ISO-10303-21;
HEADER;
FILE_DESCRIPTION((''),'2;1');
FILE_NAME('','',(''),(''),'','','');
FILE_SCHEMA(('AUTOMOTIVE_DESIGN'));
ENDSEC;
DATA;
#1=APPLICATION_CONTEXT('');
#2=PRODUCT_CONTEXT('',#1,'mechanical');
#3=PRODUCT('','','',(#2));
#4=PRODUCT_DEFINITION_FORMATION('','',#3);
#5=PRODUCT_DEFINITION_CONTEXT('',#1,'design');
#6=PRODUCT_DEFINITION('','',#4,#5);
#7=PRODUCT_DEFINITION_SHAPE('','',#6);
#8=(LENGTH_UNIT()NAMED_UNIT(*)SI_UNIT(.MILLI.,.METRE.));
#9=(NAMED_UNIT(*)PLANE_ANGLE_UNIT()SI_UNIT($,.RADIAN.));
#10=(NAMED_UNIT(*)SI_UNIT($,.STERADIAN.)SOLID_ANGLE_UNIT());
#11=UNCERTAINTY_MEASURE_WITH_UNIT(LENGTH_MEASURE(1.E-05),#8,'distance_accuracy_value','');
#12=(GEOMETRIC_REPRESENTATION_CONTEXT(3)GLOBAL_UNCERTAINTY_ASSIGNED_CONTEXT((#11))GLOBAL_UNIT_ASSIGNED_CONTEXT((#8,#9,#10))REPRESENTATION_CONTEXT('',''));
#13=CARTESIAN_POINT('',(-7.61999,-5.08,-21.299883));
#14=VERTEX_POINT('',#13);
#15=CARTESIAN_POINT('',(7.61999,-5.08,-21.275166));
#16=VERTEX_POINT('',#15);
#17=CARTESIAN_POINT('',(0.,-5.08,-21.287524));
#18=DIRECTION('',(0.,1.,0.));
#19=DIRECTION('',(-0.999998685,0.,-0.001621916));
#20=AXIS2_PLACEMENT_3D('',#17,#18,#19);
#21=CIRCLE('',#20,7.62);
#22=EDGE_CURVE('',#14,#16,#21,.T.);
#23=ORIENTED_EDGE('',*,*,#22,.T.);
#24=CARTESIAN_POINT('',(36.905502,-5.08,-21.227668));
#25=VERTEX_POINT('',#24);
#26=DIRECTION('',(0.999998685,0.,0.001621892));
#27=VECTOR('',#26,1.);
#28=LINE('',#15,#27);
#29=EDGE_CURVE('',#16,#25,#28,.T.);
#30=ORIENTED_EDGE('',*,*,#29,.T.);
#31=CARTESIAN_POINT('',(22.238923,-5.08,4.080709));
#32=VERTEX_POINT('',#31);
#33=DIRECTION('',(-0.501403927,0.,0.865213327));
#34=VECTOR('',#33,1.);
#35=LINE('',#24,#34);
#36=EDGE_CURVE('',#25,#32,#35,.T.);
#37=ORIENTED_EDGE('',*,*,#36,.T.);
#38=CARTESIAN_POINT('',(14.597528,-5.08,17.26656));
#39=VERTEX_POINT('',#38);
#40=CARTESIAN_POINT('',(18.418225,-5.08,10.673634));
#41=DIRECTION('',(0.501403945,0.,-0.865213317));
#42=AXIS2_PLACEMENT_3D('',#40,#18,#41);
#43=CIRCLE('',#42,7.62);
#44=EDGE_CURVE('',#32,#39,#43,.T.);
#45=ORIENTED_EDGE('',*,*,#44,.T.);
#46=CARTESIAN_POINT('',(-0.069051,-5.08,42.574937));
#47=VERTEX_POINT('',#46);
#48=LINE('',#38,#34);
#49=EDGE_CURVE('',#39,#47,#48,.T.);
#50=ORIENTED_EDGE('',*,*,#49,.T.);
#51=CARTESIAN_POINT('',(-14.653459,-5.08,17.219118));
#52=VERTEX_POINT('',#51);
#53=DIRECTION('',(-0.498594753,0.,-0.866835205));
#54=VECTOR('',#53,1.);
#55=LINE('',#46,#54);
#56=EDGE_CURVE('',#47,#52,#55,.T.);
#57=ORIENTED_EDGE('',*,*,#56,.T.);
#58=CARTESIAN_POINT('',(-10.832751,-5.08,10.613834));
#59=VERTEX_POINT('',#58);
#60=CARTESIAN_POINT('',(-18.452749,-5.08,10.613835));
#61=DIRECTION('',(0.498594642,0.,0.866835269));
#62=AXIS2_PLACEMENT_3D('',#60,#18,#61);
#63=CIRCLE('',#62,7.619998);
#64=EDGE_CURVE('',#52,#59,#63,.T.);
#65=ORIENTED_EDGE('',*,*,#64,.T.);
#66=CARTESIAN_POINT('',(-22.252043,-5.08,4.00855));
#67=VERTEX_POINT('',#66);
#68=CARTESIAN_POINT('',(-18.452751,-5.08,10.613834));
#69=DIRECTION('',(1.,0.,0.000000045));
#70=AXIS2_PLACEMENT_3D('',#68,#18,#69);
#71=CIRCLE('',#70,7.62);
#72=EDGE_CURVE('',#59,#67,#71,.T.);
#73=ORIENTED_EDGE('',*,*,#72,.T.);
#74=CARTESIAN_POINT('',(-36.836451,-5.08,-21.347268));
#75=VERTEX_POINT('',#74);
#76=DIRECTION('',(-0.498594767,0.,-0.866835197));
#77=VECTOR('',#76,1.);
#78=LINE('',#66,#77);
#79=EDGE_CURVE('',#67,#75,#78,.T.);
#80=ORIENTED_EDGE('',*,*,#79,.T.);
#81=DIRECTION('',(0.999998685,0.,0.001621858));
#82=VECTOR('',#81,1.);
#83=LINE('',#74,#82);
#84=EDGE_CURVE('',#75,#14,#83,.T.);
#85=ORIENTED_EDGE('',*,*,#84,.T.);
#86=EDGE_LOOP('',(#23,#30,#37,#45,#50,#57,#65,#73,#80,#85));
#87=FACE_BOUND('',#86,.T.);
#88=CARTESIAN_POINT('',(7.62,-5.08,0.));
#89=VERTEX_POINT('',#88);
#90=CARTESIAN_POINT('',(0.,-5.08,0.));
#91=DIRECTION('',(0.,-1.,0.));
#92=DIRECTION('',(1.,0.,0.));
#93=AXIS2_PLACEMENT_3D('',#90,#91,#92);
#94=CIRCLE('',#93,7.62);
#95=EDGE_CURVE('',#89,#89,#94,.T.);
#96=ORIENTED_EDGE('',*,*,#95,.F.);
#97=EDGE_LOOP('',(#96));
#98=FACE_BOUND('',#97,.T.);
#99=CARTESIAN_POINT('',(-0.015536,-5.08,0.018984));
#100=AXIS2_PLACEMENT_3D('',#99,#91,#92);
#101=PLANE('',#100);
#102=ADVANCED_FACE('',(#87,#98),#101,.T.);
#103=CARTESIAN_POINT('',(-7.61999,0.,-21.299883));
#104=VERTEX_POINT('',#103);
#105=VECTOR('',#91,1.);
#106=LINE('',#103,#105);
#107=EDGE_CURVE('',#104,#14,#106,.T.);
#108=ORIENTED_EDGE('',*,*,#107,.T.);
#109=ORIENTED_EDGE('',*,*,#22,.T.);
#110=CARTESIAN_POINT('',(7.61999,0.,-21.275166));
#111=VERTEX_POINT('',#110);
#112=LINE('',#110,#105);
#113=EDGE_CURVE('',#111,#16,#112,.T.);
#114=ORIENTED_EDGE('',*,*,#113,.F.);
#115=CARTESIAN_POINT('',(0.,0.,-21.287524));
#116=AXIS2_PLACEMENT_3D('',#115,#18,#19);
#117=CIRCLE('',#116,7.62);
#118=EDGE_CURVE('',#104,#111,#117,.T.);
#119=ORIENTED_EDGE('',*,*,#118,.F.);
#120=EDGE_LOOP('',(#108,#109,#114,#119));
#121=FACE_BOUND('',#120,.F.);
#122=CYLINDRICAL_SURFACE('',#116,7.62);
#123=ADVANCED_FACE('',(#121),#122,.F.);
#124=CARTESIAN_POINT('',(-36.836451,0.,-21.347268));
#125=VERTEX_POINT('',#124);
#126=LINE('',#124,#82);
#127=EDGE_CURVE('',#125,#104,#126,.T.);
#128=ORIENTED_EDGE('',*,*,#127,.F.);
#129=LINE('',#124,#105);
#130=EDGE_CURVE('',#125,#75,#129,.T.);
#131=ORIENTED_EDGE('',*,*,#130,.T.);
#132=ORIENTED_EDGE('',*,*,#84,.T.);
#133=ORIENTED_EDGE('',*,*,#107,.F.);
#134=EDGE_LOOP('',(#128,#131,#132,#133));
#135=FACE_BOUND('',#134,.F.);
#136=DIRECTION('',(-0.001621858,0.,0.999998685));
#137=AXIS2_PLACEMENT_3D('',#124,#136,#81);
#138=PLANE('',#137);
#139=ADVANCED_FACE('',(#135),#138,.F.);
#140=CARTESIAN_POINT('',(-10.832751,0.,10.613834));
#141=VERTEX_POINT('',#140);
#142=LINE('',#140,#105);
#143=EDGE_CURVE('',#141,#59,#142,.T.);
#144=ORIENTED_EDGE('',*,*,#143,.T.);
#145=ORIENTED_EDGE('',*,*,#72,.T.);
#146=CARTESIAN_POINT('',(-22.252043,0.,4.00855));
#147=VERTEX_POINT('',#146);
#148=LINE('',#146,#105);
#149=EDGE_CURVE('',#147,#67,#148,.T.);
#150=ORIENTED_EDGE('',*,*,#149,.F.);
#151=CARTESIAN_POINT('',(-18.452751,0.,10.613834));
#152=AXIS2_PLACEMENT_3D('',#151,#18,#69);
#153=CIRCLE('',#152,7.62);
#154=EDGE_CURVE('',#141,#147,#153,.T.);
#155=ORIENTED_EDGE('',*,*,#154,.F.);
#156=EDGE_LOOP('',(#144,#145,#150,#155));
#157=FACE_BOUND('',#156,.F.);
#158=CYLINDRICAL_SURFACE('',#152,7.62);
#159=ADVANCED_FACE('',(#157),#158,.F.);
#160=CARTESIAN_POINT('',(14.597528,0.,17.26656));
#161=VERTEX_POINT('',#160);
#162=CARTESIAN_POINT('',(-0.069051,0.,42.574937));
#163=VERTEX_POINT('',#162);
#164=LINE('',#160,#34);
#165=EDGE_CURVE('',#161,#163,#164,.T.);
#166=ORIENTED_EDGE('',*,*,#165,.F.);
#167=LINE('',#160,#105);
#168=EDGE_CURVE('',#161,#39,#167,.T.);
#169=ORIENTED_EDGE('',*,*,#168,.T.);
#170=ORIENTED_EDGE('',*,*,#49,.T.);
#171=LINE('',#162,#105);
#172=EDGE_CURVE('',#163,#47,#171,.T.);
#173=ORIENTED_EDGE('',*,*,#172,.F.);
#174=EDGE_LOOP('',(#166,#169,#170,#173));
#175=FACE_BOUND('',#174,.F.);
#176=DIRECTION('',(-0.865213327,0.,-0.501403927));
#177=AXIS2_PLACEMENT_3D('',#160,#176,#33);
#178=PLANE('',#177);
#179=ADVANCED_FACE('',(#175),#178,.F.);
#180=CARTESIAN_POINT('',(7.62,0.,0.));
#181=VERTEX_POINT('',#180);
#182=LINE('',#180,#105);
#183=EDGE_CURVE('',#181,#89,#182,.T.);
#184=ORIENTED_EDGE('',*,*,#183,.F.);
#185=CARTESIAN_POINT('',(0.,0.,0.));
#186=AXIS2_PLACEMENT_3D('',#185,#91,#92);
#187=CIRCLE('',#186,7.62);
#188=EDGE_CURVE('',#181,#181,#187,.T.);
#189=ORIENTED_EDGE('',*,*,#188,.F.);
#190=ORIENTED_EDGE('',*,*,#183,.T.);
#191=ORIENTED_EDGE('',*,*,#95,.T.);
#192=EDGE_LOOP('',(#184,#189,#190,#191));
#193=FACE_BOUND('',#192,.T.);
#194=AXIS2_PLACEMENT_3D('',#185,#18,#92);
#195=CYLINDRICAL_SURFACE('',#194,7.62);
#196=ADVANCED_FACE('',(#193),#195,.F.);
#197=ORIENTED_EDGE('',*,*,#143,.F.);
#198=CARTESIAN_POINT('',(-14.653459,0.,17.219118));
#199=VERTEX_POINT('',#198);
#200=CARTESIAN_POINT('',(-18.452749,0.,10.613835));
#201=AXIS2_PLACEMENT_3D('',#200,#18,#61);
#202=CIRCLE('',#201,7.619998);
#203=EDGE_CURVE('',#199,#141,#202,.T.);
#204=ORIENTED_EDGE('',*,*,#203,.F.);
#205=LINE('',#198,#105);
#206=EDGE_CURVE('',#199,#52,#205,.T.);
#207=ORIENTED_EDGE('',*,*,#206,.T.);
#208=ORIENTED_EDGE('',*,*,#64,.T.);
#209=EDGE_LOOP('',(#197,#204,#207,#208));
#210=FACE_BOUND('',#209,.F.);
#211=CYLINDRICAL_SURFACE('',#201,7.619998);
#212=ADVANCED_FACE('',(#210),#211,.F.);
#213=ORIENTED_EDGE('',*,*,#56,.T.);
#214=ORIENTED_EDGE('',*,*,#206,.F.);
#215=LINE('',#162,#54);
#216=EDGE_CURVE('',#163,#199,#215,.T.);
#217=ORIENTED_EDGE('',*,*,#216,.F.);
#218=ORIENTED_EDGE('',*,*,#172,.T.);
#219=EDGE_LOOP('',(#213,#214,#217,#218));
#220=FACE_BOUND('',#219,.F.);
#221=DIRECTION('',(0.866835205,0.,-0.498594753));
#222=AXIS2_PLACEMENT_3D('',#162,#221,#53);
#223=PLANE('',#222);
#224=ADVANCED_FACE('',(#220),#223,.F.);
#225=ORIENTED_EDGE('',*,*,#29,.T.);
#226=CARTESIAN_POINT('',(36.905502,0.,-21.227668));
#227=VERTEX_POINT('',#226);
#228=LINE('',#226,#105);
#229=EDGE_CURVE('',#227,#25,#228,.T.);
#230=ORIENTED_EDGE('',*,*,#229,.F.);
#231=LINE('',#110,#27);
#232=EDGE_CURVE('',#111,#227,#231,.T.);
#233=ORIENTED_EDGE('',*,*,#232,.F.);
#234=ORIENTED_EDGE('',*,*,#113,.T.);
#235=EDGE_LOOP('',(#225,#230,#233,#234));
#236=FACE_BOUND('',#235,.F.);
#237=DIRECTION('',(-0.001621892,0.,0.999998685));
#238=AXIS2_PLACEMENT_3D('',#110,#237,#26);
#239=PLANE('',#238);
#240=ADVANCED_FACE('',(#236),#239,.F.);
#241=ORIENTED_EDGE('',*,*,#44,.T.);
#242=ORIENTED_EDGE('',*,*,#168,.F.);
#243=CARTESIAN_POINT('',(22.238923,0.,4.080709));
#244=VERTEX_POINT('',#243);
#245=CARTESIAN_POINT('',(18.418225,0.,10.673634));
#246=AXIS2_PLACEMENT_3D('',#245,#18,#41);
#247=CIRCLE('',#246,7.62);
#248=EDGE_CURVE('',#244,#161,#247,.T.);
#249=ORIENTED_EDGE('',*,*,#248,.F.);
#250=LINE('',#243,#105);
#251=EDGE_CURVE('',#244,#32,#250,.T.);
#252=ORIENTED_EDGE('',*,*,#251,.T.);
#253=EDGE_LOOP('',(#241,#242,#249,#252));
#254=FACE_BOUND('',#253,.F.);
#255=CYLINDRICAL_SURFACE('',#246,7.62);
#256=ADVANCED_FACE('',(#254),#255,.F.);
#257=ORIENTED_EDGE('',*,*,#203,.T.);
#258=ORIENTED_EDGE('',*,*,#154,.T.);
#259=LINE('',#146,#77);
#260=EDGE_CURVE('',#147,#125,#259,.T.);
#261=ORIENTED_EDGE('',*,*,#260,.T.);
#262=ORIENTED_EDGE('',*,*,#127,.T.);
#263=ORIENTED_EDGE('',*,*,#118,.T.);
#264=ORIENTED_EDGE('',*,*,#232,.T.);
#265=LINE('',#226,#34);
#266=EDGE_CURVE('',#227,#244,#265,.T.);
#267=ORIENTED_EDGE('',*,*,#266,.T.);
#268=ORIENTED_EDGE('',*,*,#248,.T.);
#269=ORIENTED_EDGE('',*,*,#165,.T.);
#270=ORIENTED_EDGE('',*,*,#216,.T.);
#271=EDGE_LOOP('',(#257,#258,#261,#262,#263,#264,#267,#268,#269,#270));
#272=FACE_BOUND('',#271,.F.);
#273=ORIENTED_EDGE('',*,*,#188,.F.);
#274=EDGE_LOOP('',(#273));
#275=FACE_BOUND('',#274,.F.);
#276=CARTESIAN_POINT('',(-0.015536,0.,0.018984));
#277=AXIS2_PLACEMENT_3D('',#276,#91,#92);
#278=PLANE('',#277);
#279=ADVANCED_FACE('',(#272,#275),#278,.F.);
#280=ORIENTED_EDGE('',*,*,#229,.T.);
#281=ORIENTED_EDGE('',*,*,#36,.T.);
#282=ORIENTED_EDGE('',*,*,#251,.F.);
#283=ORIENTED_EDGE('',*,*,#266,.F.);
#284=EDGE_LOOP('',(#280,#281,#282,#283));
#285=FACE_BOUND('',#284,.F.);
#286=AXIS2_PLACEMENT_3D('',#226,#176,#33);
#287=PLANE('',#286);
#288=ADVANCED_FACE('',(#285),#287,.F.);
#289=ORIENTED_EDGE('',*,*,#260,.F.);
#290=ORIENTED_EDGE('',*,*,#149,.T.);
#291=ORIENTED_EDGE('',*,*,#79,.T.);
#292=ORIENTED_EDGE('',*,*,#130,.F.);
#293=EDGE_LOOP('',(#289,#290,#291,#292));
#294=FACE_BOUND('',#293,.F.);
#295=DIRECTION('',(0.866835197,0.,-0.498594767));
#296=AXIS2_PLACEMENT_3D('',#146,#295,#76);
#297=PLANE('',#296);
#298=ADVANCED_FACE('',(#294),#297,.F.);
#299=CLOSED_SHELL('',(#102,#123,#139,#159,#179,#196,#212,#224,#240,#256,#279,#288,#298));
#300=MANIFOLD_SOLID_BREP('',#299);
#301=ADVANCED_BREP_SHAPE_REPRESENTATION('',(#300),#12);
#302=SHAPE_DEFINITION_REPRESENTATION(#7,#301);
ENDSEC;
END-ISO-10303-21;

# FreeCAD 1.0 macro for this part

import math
import FreeCAD as App
import Part
import Sketcher
Q = App.Units.Quantity

doc = App.newDocument("Part")
body = doc.addObject("PartDesign::Body", "Body")

# Sketch on XZ plane
sketch1 = body.newObject("Sketcher::SketchObject", "Sketch")
sketch1.AttachmentSupport = (doc.getObject("XZ_Plane"), [""])
sketch1.MapMode = "FlatFace"
sketch1.addGeometry(Part.LineSegment(App.Vector(8, -21, 0), App.Vector(37, -21, 0)), False)
sketch1.addGeometry(Part.LineSegment(App.Vector(37, -21, 0), App.Vector(22, 4, 0)), False)
sketch1.addGeometry(Part.ArcOfCircle(Part.Circle(App.Vector(18, 11, 0), App.Vector(0, 0, 1), 8), math.radians(120), math.radians(300)), False)
sketch1.addGeometry(Part.LineSegment(App.Vector(15, 17, 0), App.Vector(0, 43, 0)), False)
sketch1.addGeometry(Part.LineSegment(App.Vector(0, 43, 0), App.Vector(-15, 17, 0)), False)
sketch1.addGeometry(Part.ArcOfCircle(Part.Circle(App.Vector(-18, 11, 0), App.Vector(0, 0, 1), 8), math.radians(0), math.radians(60)), False)
sketch1.addGeometry(Part.ArcOfCircle(Part.Circle(App.Vector(-18, 11, 0), App.Vector(0, 0, 1), 8), math.radians(-120), math.radians(0)), False)
sketch1.addGeometry(Part.LineSegment(App.Vector(-22, 4, 0), App.Vector(-37, -21, 0)), False)
sketch1.addGeometry(Part.LineSegment(App.Vector(-37, -21, 0), App.Vector(-8, -21, 0)), False)
sketch1.addGeometry(Part.ArcOfCircle(Part.Circle(App.Vector(0, -21, 0), App.Vector(0, 0, 1), 8), math.radians(0), math.radians(180)), False)
sketch1.addGeometry(Part.Circle(App.Vector(0, 0, 0), App.Vector(0, 0, 1), 8), False)
sketch1.addConstraint(Sketcher.Constraint("Coincident", 0, 2, 1, 1))
sketch1.addConstraint(Sketcher.Constraint("Coincident", 1, 2, 2, 2))
sketch1.addConstraint(Sketcher.Constraint("Coincident", 2, 1, 3, 1))
sketch1.addConstraint(Sketcher.Constraint("Coincident", 3, 2, 4, 1))
sketch1.addConstraint(Sketcher.Constraint("Coincident", 4, 2, 5, 2))
sketch1.addConstraint(Sketcher.Constraint("Tangent", 5, 1, 6, 2))
sketch1.addConstraint(Sketcher.Constraint("Coincident", 6, 1, 7, 1))
sketch1.addConstraint(Sketcher.Constraint("Coincident", 7, 2, 8, 1))
sketch1.addConstraint(Sketcher.Constraint("Coincident", 8, 2, 9, 2))
sketch1.addConstraint(Sketcher.Constraint("Coincident", 9, 1, 0, 1))
sketch1.addConstraint(Sketcher.Constraint("Coincident", 10, 3, -1, 1))
sketch1.addConstraint(Sketcher.Constraint("Equal", 2, 5))
sketch1.addConstraint(Sketcher.Constraint("Equal", 5, 6))
sketch1.addConstraint(Sketcher.Constraint("Equal", 6, 9))
sketch1.addConstraint(Sketcher.Constraint("Equal", 9, 10))
sketch1.addConstraint(Sketcher.Constraint("PointOnObject", 9, 3, -2))
sketch1.addConstraint(Sketcher.Constraint("Parallel", 1, 3))
sketch1.addConstraint(Sketcher.Constraint("Parallel", 4, 7))
sketch1.addConstraint(Sketcher.Constraint("Parallel", 0, 8))
sketch1.addConstraint(Sketcher.Constraint("Horizontal", 6, 3, 5, 1))
sketch1.addConstraint(Sketcher.Constraint("Equal", 1, 3))
sketch1.addConstraint(Sketcher.Constraint("Equal", 3, 4))
sketch1.addConstraint(Sketcher.Constraint("Equal", 4, 7))
sketch1.addConstraint(Sketcher.Constraint("Diameter", 10, Q("0.6 in")))
sketch1.addConstraint(Sketcher.Constraint("Distance", 8, Q("29.216499 mm")))
sketch1.addConstraint(Sketcher.Constraint("DistanceX", -1, 1, 0, 2, Q("36.905502 mm")))
sketch1.addConstraint(Sketcher.Constraint("DistanceY", 5, 3, 2, 3, Q("0.0598 mm")))
sketch1.addConstraint(Sketcher.Constraint("DistanceY", 0, 2, 6, 3, Q("31.841502 mm")))
sketch1.addConstraint(Sketcher.Constraint("DistanceX", 5, 3, 3, 2, Q("18.383698 mm")))
sketch1.addConstraint(Sketcher.Constraint("DistanceX", 7, 2, 6, 3, Q("18.3837 mm")))
sketch1.addConstraint(Sketcher.Constraint("DistanceY", 9, 1, 0, 2, Q("0.047498 mm")))
sketch1.addConstraint(Sketcher.Constraint("DistanceY", 0, 2, -1, 1, Q("21.227668 mm")))
sketch1.addConstraint(Sketcher.Constraint("DistanceY", -1, 1, 1, 2, Q("4.080709 mm")))
sketch1.addConstraint(Sketcher.Constraint("DistanceX", 4, 2, -1, 1, Q("14.653459 mm")))
sketch1.addConstraint(Sketcher.Constraint("DistanceY", 9, 3, 5, 3, Q("31.901359 mm")))
pad1 = body.newObject("PartDesign::Pad", "Pad")
pad1.Profile = sketch1
pad1.Length = Q("0.2 in")

doc.recompute()
